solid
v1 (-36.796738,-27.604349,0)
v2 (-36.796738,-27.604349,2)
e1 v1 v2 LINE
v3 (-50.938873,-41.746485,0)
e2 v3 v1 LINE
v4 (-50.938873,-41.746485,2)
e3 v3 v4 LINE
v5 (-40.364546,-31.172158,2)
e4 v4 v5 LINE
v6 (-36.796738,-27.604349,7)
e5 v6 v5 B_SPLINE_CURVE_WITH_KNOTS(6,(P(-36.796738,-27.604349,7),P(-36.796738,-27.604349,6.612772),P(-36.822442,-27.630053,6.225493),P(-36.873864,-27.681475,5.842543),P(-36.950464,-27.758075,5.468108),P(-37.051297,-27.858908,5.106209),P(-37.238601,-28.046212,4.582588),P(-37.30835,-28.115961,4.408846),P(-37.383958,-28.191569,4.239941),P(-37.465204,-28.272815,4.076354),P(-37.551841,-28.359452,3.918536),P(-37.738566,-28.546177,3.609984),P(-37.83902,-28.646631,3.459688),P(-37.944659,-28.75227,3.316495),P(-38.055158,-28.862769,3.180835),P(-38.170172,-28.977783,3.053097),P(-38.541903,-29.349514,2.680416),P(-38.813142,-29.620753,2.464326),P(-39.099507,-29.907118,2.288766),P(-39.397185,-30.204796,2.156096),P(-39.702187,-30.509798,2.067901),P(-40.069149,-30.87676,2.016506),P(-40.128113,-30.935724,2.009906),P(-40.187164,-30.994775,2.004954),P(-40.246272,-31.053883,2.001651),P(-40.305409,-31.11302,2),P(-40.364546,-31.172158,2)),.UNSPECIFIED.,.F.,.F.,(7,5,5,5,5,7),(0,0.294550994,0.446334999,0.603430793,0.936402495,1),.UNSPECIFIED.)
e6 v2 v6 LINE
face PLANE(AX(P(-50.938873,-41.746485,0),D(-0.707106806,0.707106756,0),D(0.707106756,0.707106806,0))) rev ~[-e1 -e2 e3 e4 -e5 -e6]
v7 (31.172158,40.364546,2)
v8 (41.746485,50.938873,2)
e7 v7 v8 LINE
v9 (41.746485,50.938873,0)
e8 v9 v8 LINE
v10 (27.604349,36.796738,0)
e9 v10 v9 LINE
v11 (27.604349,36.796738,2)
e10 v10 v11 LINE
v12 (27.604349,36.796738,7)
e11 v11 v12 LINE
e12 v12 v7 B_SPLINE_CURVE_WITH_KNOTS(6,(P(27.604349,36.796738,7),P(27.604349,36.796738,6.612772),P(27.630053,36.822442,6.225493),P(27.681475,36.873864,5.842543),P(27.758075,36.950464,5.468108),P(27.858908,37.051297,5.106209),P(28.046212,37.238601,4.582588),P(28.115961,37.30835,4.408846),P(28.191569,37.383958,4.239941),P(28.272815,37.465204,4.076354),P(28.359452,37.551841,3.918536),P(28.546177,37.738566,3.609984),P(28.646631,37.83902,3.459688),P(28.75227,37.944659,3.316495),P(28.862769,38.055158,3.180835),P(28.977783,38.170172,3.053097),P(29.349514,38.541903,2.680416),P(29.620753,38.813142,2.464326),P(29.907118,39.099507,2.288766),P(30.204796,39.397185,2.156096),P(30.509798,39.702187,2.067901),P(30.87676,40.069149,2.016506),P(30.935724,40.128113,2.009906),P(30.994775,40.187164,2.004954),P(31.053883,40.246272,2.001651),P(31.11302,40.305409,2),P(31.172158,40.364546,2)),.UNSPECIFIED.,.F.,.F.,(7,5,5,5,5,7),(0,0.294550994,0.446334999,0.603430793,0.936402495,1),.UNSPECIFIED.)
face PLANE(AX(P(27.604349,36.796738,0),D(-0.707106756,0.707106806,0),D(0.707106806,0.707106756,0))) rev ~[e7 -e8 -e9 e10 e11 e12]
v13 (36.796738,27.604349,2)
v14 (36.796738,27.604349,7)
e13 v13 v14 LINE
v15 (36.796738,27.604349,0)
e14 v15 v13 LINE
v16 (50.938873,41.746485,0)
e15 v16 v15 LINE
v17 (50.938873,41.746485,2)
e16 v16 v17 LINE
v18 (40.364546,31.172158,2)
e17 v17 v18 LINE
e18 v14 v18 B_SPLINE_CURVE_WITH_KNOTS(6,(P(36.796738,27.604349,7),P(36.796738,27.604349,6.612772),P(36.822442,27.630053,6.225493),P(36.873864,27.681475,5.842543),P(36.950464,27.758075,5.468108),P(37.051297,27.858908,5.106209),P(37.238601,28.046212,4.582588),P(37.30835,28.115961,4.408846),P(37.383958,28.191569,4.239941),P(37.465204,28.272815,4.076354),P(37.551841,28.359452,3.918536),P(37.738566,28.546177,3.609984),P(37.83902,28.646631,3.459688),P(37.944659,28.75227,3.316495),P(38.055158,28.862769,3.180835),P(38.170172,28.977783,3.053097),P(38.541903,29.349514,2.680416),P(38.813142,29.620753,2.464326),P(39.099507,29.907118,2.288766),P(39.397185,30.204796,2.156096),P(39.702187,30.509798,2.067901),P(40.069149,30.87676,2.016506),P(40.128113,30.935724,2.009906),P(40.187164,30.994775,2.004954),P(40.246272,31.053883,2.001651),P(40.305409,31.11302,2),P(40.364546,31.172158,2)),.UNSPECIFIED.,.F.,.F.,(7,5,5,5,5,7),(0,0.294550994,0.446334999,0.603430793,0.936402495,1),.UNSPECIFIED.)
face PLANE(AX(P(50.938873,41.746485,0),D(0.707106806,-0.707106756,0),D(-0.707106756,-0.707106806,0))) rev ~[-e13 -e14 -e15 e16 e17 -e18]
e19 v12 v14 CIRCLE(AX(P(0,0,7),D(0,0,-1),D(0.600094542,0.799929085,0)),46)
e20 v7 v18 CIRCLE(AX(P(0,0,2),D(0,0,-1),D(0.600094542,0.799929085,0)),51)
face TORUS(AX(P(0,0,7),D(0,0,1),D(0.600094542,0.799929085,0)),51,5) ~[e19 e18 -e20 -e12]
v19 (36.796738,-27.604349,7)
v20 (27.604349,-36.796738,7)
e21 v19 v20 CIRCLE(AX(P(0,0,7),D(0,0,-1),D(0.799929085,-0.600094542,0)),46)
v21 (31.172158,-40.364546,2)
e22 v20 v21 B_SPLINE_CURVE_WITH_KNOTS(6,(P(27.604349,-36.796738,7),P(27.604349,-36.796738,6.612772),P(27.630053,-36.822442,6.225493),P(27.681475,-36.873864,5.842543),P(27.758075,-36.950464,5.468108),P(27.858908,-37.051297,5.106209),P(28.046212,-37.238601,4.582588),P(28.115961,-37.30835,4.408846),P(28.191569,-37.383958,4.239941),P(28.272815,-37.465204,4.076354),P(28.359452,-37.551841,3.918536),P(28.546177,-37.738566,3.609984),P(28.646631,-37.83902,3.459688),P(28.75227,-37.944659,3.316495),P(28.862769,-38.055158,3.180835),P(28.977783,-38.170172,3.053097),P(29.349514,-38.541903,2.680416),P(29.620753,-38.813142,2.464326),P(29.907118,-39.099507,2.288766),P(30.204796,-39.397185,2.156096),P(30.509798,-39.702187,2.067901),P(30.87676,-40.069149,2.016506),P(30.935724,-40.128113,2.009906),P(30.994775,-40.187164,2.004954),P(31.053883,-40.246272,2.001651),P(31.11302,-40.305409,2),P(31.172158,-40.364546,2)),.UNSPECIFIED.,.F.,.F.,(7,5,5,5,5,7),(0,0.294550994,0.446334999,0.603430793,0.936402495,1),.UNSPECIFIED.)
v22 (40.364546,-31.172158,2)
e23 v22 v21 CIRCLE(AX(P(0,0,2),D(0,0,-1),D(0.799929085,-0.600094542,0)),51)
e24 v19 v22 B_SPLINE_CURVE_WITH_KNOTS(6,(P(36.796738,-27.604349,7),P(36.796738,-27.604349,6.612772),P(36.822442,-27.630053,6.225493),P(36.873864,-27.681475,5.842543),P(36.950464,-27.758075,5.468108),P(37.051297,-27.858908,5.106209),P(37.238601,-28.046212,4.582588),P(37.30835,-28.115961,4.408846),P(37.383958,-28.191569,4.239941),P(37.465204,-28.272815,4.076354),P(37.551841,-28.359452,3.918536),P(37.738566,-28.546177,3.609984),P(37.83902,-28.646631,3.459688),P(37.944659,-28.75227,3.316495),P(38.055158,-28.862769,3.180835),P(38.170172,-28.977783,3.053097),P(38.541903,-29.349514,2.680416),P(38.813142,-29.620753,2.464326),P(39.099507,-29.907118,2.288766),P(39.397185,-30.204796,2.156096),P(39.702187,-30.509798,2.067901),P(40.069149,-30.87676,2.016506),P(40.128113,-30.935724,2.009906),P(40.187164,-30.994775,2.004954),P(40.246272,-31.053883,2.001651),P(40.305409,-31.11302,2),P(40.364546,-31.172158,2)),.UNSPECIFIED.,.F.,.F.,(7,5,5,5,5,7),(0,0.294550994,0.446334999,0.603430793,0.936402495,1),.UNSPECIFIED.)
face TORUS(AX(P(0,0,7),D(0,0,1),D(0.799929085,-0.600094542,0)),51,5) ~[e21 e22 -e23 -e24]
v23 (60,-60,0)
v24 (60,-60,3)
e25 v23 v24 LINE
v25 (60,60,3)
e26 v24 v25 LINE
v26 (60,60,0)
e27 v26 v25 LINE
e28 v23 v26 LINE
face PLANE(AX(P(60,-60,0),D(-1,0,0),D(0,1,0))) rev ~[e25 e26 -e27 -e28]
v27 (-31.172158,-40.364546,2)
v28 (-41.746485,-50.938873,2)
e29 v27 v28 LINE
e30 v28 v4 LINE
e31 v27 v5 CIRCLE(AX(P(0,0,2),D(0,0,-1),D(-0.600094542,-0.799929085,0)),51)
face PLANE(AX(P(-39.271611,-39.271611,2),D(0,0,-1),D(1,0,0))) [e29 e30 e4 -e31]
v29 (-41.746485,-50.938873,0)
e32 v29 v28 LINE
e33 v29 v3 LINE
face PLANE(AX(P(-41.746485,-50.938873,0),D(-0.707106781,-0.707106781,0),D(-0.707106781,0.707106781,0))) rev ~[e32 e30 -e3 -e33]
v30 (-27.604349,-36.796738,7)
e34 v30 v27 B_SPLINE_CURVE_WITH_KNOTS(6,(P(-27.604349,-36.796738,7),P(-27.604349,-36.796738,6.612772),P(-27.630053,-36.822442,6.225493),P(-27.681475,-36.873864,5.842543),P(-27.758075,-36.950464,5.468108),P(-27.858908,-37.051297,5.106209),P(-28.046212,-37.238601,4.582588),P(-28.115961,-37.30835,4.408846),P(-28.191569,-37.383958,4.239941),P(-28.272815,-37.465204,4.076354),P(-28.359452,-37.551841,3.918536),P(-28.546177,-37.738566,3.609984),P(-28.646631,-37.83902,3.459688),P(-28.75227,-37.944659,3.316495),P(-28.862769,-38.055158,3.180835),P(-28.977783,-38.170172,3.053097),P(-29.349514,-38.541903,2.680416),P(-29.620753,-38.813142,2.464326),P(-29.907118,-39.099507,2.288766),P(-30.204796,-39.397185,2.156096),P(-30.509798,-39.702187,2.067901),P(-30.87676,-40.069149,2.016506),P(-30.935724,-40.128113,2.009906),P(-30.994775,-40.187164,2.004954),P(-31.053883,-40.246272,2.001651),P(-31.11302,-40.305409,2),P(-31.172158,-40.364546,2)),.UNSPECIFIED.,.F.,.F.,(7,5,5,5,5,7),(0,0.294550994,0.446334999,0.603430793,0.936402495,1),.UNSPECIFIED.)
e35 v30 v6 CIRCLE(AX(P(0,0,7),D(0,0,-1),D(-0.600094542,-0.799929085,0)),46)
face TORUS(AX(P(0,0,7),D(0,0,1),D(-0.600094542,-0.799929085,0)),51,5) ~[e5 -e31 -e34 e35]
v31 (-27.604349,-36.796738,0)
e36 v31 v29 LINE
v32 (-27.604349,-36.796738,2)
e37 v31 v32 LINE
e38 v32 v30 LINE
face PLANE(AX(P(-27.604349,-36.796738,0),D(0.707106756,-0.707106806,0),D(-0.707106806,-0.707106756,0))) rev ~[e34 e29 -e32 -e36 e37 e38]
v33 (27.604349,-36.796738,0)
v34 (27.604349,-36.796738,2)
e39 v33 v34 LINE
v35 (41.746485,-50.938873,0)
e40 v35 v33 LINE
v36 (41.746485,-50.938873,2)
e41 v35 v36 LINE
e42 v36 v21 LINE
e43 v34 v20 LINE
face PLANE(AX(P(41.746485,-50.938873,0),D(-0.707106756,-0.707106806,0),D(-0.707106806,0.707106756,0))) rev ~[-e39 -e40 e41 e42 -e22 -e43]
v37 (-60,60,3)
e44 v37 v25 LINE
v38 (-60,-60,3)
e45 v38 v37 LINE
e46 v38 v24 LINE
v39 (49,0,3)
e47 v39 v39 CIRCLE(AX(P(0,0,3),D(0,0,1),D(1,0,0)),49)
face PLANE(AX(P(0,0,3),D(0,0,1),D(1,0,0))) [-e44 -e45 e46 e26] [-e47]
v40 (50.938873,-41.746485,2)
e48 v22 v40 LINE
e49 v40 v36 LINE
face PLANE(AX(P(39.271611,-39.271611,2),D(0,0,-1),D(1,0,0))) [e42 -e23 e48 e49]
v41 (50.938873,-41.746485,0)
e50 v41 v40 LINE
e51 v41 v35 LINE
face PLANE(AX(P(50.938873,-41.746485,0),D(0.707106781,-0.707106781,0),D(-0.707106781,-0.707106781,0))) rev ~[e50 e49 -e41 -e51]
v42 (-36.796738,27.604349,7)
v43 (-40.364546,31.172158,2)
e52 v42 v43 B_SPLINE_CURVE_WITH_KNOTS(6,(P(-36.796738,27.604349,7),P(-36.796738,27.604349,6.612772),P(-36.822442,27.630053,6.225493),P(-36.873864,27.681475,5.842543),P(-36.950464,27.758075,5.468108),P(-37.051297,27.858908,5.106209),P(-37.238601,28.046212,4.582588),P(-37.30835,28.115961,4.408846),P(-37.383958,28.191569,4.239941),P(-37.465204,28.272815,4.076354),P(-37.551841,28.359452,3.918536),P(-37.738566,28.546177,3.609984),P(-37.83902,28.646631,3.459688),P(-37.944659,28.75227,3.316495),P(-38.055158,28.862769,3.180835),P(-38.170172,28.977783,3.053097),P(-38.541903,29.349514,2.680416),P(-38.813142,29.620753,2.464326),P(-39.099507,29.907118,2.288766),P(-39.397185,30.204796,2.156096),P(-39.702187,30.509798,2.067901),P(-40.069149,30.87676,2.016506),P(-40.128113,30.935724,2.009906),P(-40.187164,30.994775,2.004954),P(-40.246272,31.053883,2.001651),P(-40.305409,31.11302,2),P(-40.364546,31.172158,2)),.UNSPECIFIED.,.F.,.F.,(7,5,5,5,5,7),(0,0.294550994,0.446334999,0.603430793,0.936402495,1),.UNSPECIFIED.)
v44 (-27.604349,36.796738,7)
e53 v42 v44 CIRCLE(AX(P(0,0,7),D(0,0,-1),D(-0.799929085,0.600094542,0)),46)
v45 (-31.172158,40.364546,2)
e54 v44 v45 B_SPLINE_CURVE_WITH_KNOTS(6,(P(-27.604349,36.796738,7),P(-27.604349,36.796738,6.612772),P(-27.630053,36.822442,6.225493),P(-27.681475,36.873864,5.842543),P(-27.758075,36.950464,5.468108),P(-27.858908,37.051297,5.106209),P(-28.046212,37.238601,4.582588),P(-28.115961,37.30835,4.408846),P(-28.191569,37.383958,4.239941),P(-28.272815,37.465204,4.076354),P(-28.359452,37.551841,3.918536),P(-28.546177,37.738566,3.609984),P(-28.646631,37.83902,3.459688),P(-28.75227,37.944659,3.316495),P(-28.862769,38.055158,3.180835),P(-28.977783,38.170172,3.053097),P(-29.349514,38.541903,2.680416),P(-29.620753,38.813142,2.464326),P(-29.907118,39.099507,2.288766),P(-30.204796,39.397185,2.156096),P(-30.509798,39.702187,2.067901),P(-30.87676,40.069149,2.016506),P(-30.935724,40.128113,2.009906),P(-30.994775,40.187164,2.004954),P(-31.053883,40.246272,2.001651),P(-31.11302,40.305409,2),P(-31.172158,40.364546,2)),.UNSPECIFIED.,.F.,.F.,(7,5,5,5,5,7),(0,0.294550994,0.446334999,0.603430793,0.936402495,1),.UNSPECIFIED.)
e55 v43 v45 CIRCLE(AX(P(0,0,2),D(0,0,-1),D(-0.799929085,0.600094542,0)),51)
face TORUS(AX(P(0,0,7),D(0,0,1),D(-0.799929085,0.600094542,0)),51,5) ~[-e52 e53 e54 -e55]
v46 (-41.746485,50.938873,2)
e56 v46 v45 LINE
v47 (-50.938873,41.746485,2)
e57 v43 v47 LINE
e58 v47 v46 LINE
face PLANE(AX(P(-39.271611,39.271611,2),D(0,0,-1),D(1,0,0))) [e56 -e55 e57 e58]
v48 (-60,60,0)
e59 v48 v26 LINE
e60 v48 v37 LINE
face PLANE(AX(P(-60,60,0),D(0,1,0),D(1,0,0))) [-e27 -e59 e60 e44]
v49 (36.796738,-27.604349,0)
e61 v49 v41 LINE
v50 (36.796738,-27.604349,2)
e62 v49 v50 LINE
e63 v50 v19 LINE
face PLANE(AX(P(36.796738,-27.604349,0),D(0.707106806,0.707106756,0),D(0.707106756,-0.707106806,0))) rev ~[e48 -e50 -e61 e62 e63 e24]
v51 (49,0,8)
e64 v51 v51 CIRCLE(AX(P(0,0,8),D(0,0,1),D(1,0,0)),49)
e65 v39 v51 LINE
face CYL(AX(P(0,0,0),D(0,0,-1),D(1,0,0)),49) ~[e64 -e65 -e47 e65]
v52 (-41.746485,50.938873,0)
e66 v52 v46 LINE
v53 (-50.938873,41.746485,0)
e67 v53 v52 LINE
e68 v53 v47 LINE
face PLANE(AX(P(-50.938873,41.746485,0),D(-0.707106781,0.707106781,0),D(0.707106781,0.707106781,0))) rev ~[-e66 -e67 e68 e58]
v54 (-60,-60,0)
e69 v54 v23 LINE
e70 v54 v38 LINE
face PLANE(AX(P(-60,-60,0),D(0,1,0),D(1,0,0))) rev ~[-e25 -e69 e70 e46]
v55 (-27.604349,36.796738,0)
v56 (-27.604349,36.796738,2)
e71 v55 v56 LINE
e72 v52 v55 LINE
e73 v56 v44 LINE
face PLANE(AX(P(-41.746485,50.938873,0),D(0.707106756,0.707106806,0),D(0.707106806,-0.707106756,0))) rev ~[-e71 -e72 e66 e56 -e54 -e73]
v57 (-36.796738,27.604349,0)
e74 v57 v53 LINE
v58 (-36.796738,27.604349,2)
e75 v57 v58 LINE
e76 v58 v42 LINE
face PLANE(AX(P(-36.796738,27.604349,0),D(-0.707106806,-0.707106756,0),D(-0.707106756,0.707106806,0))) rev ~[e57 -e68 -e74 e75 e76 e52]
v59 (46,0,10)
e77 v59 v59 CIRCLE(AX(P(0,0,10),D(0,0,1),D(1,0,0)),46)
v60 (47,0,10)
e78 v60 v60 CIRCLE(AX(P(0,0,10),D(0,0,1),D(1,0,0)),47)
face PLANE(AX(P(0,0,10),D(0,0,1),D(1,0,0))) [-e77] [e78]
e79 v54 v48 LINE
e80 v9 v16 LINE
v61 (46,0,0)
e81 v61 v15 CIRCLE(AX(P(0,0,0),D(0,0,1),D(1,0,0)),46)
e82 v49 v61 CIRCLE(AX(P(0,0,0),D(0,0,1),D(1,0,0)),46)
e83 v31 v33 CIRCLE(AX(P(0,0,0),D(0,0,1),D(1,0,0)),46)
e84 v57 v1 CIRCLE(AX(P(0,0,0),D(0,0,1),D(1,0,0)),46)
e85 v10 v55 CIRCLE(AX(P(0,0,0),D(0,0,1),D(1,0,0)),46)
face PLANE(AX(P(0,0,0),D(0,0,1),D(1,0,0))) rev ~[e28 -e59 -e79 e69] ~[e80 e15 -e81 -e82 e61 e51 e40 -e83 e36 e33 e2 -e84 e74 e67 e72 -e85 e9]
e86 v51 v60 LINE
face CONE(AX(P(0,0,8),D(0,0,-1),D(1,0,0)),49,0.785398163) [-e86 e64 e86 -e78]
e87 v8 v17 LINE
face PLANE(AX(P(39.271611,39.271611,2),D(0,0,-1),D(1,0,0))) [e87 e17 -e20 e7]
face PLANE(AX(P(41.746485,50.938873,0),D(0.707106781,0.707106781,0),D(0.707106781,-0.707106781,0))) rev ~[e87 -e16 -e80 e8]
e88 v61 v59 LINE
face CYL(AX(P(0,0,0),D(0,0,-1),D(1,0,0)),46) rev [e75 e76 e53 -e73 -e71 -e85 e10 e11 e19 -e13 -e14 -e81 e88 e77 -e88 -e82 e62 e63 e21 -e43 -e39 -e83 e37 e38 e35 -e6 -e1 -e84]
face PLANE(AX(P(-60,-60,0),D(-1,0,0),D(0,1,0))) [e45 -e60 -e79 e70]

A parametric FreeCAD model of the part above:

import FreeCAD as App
import Part
import Sketcher
from FreeCAD import Vector


def edges_at(feature, points):
    """Names of the edges that pass closest to the given points."""
    edges = feature.Shape.Edges
    near = lambda p: min(range(len(edges)), key=lambda i: edges[i].distToShape(Part.Vertex(*p))[0])
    return sorted({f"Edge{near(p) + 1}" for p in points})


def add_polygon(sketch, points):
    """Adds a closed chain of lines whose ends are joined by coincident constraints."""
    first, n = sketch.GeometryCount, len(points)
    for a, b in zip(points, points[1:] + points[:1]):
        sketch.addGeometry(Part.LineSegment(App.Vector(*a, 0), App.Vector(*b, 0)), False)
    for i in range(n):
        sketch.addConstraint(Sketcher.Constraint("Coincident", first + i, 2, first + (i + 1) % n, 1))

doc = App.newDocument("Part")
body = doc.addObject("PartDesign::Body", "Body")

# Sketch on XY plane
sketch1 = body.newObject("Sketcher::SketchObject", "Sketch")
sketch1.AttachmentSupport = (doc.getObject("XY_Plane"), [""])
sketch1.MapMode = "FlatFace"
sketch1.addGeometry(Part.Circle(Vector(0, 0, 0), Vector(0, 0, 1), 49), False)
sketch1.addGeometry(Part.Circle(Vector(0, 0, 0), Vector(0, 0, 1), 46), False)
sketch1.addConstraint(Sketcher.Constraint("Coincident", 0, 3, -1, 1))
sketch1.addConstraint(Sketcher.Constraint("Coincident", 1, 3, -1, 1))
sketch1.addConstraint(Sketcher.Constraint("Diameter", 0, 98.0))
sketch1.addConstraint(Sketcher.Constraint("Diameter", 1, 92.0))
pad1 = body.newObject("PartDesign::Pad", "Pad")
pad1.Profile = sketch1
pad1.Length = 10

# Sketch on XY plane
sketch2 = body.newObject("Sketcher::SketchObject", "Sketch001")
sketch2.AttachmentSupport = (doc.getObject("XY_Plane"), [""])
sketch2.MapMode = "FlatFace"
add_polygon(sketch2, [(-60, 60), (-60, -60), (60, -60), (60, 60)])  # lines 0-3
sketch2.addGeometry(Part.Circle(Vector(0, 0, 0), Vector(0, 0, 1), 49), False)  # 4
sketch2.addConstraint(Sketcher.Constraint("Vertical", 0))
sketch2.addConstraint(Sketcher.Constraint("Horizontal", 1))
sketch2.addConstraint(Sketcher.Constraint("Vertical", 2))
sketch2.addConstraint(Sketcher.Constraint("Horizontal", 3))
sketch2.addConstraint(Sketcher.Constraint("Coincident", 4, 3, -1, 1))
sketch2.addConstraint(Sketcher.Constraint("Symmetric", 0, 2, 2, 2, -1, 1))
sketch2.addConstraint(Sketcher.Constraint("Equal", 3, 0))
sketch2.addConstraint(Sketcher.Constraint("Diameter", 4, 98.0))
sketch2.addConstraint(Sketcher.Constraint("DistanceX", 1, 1, 1, 2, 120.0))
pad2 = body.newObject("PartDesign::Pad", "Pad001")
pad2.Profile = sketch2
pad2.Length = 3
doc.recompute()

chamfer = body.newObject("PartDesign::Chamfer", "Chamfer")
chamfer.Base = (pad2, edges_at(pad2, [(-49, 0, 10)]))
chamfer.Size = 2

# Sketch on XY plane
sketch3 = body.newObject("Sketcher::SketchObject", "Sketch002")
sketch3.AttachmentSupport = (doc.getObject("XY_Plane"), [""])
sketch3.MapMode = "FlatFace"
add_polygon(sketch3, [(-28, -37), (-42, -51), (-51, -42), (-37, -28)])  # lines 0-3
add_polygon(sketch3, [(42, 51), (51, 42), (37, 28), (28, 37)])  # lines 4-7
add_polygon(sketch3, [(51, -42), (42, -51), (28, -37), (37, -28)])  # lines 8-11
add_polygon(sketch3, [(-37, 28), (-51, 42), (-42, 51), (-28, 37)])  # lines 12-15
sketch3.addConstraint(Sketcher.Constraint("Symmetric", 1, 2, 4, 2, -1, 1))
sketch3.addConstraint(Sketcher.Constraint("Symmetric", 2, 2, 5, 2, -1, 1))
sketch3.addConstraint(Sketcher.Constraint("Symmetric", 3, 2, 6, 2, -1, 1))
sketch3.addConstraint(Sketcher.Constraint("Symmetric", 0, 2, 7, 2, -1, 1))
sketch3.addConstraint(Sketcher.Constraint("Symmetric", 11, 2, 12, 2, -1, 1))
sketch3.addConstraint(Sketcher.Constraint("Symmetric", 8, 2, 13, 2, -1, 1))
sketch3.addConstraint(Sketcher.Constraint("Symmetric", 9, 2, 14, 2, -1, 1))
sketch3.addConstraint(Sketcher.Constraint("Symmetric", 10, 2, 15, 2, -1, 1))
sketch3.addConstraint(Sketcher.Constraint("Symmetric", 0, 2, 8, 2, -2))
sketch3.addConstraint(Sketcher.Constraint("Symmetric", 3, 2, 9, 2, -2))
sketch3.addConstraint(Sketcher.Constraint("Symmetric", 2, 2, 10, 2, -2))
sketch3.addConstraint(Sketcher.Constraint("Symmetric", 1, 2, 11, 2, -2))
sketch3.addConstraint(Sketcher.Constraint("Perpendicular", 0, 1))
sketch3.addConstraint(Sketcher.Constraint("Perpendicular", 1, 2))
sketch3.addConstraint(Sketcher.Constraint("Perpendicular", 2, 3))
sketch3.addConstraint(Sketcher.Constraint("Parallel", 7, 8))
sketch3.addConstraint(Sketcher.Constraint("Distance", 0, 20.0))
sketch3.addConstraint(Sketcher.Constraint("Distance", 1, 13.0))
sketch3.addConstraint(Sketcher.Constraint("DistanceY", 2, 2, -1, 1, 27.604349))
sketch3.addConstraint(Sketcher.Constraint("DistanceX", 3, 2, -1, 1, 27.604349))
pocket1 = body.newObject("PartDesign::Pocket", "Pocket")
pocket1.Profile = sketch3
pocket1.Length = 2
pocket1.Reversed = True
doc.recompute()

fillet = body.newObject("PartDesign::Fillet", "Fillet")
fillet.Base = (pocket1, edges_at(pocket1, [
    (-32.527, -32.527, 2),
    (32.527, -32.527, 2),
    (32.527, 32.527, 2),
    (-32.527, 32.527, 2),
]))
fillet.Radius = 5

doc.recompute()
